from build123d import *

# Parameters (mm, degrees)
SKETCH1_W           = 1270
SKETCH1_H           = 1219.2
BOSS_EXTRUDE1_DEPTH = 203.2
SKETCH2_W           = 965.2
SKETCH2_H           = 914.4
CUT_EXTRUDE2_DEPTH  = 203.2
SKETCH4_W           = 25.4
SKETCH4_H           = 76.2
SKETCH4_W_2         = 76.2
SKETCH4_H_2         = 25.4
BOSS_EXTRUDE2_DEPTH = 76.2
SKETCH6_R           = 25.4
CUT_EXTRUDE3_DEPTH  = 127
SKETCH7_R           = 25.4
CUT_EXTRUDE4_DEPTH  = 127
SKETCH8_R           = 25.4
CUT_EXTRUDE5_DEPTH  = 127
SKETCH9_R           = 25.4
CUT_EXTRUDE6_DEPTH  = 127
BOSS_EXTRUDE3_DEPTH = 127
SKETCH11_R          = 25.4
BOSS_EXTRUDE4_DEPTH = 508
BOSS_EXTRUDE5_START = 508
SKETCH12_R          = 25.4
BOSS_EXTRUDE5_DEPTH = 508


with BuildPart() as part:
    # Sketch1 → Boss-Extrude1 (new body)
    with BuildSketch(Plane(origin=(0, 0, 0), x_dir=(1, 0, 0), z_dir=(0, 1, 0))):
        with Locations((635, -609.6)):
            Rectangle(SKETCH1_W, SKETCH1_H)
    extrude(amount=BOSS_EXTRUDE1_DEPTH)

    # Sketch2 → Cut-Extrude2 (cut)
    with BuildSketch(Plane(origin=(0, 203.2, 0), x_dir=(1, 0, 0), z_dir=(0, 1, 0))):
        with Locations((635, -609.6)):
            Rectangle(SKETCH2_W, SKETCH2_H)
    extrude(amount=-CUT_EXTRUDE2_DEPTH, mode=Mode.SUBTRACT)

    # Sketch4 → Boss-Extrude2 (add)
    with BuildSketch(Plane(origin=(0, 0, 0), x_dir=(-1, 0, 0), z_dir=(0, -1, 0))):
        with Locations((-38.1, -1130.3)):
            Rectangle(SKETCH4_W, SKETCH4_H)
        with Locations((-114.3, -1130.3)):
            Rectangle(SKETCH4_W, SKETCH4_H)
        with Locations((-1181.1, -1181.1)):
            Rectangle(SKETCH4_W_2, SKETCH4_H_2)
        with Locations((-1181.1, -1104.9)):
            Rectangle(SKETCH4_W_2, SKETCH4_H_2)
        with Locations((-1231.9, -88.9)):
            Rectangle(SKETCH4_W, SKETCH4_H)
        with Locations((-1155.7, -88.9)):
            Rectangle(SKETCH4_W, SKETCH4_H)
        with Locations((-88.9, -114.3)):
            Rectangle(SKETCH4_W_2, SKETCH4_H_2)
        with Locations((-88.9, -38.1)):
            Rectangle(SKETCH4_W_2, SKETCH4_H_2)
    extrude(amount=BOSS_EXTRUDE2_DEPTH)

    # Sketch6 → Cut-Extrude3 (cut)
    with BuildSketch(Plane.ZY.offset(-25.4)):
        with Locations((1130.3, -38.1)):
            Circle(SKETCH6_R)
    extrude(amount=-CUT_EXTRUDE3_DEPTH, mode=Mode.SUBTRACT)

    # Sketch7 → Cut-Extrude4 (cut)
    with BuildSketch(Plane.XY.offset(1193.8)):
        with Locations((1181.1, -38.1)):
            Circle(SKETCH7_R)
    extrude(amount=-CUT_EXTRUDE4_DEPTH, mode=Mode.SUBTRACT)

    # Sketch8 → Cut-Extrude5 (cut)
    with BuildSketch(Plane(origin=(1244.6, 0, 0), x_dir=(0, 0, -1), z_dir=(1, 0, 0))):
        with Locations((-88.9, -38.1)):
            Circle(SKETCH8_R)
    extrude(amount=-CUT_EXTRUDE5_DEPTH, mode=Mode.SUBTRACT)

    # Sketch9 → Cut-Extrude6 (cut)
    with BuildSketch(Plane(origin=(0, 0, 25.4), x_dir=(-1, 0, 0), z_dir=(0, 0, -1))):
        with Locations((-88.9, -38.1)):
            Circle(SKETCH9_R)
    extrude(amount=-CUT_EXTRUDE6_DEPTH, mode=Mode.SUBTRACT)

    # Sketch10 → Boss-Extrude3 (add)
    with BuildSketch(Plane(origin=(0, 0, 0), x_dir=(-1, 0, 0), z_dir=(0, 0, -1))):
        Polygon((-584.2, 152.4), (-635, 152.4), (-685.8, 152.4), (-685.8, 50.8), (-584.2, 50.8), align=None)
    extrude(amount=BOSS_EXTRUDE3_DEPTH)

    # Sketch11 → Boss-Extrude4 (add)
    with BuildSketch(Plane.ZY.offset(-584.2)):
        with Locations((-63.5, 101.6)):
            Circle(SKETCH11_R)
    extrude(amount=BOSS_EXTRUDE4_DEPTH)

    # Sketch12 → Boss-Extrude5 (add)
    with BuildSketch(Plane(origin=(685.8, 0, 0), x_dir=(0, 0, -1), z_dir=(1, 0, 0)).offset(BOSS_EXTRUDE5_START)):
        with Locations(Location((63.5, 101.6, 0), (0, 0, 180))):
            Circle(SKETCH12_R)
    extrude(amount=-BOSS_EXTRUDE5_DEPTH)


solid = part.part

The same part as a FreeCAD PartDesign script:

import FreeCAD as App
import Part
import Sketcher

V = App.Vector
Q = App.Units.Quantity

doc = App.newDocument("Part")
body = doc.addObject("PartDesign::Body", "Body")

# Sketch on XZ plane
sketch1 = body.newObject("Sketcher::SketchObject", "Sketch")
sketch1.AttachmentSupport = (doc.getObject("XZ_Plane"), [""])
sketch1.MapMode = "FlatFace"
sketch1.addGeometry([
    Part.LineSegment(V(0, 0, 0), V(0, 1219, 0)),
    Part.LineSegment(V(0, 1219, 0), V(1270, 1219, 0)),
    Part.LineSegment(V(1270, 1219, 0), V(1270, 0, 0)),
    Part.LineSegment(V(1270, 0, 0), V(0, 0, 0)),
], False)
sketch1.addConstraint([
    Sketcher.Constraint("Coincident", 0, 2, 1, 1),
    Sketcher.Constraint("Coincident", 1, 2, 2, 1),
    Sketcher.Constraint("Coincident", 2, 2, 3, 1),
    Sketcher.Constraint("Coincident", 3, 2, 0, 1),
    Sketcher.Constraint("Vertical", 0),
    Sketcher.Constraint("Horizontal", 1),
    Sketcher.Constraint("Vertical", 2),
    Sketcher.Constraint("Horizontal", 3),
    Sketcher.Constraint("Coincident", 3, 2, -1, 1),
    Sketcher.Constraint("DistanceX", 1, 1, 1, 2, Q("50 in")),
    Sketcher.Constraint("DistanceY", 0, 1, 0, 2, Q("48 in")),
])
pad1 = body.newObject("PartDesign::Pad", "Pad")
pad1.Profile = sketch1
pad1.Length = Q("8 in")
pad1.Reversed = True

# Sketch on XZ plane
sketch2 = body.newObject("Sketcher::SketchObject", "Sketch001")
sketch2.AttachmentSupport = (doc.getObject("XZ_Plane"), [""])
sketch2.MapMode = "FlatFace"
sketch2.AttachmentOffset = App.Placement(V(0, 0, -8 * 25.4), App.Rotation())
sketch2.addGeometry([
    Part.LineSegment(V(152, 152, 0), V(152, 1067, 0)),
    Part.LineSegment(V(152, 1067, 0), V(1118, 1067, 0)),
    Part.LineSegment(V(1118, 1067, 0), V(1118, 152, 0)),
    Part.LineSegment(V(1118, 152, 0), V(152, 152, 0)),
], False)
sketch2.addConstraint([
    Sketcher.Constraint("Coincident", 0, 2, 1, 1),
    Sketcher.Constraint("Coincident", 1, 2, 2, 1),
    Sketcher.Constraint("Coincident", 2, 2, 3, 1),
    Sketcher.Constraint("Coincident", 3, 2, 0, 1),
    Sketcher.Constraint("Vertical", 0),
    Sketcher.Constraint("Horizontal", 1),
    Sketcher.Constraint("Vertical", 2),
    Sketcher.Constraint("Horizontal", 3),
    Sketcher.Constraint("DistanceX", 1, 1, 1, 2, Q("38 in")),
    Sketcher.Constraint("DistanceY", 0, 1, 0, 2, Q("36 in")),
    Sketcher.Constraint("DistanceX", -1, 1, 0, 2, Q("6 in")),
    Sketcher.Constraint("DistanceY", -1, 1, 0, 2, Q("42 in")),
])
pocket1 = body.newObject("PartDesign::Pocket", "Pocket")
pocket1.Profile = sketch2
pocket1.Length = Q("8 in")
pocket1.Reversed = True

# Sketch on XZ plane
sketch3 = body.newObject("Sketcher::SketchObject", "Sketch002")
sketch3.AttachmentSupport = (doc.getObject("XZ_Plane"), [""])
sketch3.MapMode = "FlatFace"
sketch3.addGeometry([
    Part.LineSegment(V(51, 1092, 0), V(51, 1168, 0)),  # 0
    Part.LineSegment(V(51, 1168, 0), V(25, 1168, 0)),  # 1
    Part.LineSegment(V(25, 1168, 0), V(25, 1092, 0)),  # 2
    Part.LineSegment(V(25, 1092, 0), V(51, 1092, 0)),  # 3
    Part.LineSegment(V(127, 1092, 0), V(127, 1168, 0)),  # 4
    Part.LineSegment(V(127, 1168, 0), V(102, 1168, 0)),  # 5
    Part.LineSegment(V(102, 1168, 0), V(102, 1092, 0)),  # 6
    Part.LineSegment(V(102, 1092, 0), V(127, 1092, 0)),  # 7
    Part.LineSegment(V(1219, 1168, 0), V(1219, 1194, 0)),  # 8
    Part.LineSegment(V(1219, 1194, 0), V(1143, 1194, 0)),  # 9
    Part.LineSegment(V(1143, 1194, 0), V(1143, 1168, 0)),  # 10
    Part.LineSegment(V(1143, 1168, 0), V(1219, 1168, 0)),  # 11
    Part.LineSegment(V(1219, 1092, 0), V(1219, 1118, 0)),  # 12
    Part.LineSegment(V(1219, 1118, 0), V(1143, 1118, 0)),  # 13
    Part.LineSegment(V(1143, 1118, 0), V(1143, 1092, 0)),  # 14
    Part.LineSegment(V(1143, 1092, 0), V(1219, 1092, 0)),  # 15
    Part.LineSegment(V(1245, 51, 0), V(1245, 127, 0)),  # 16
    Part.LineSegment(V(1245, 127, 0), V(1219, 127, 0)),  # 17
    Part.LineSegment(V(1219, 127, 0), V(1219, 51, 0)),  # 18
    Part.LineSegment(V(1219, 51, 0), V(1245, 51, 0)),  # 19
    Part.LineSegment(V(1168, 51, 0), V(1168, 127, 0)),  # 20
    Part.LineSegment(V(1168, 127, 0), V(1143, 127, 0)),  # 21
    Part.LineSegment(V(1143, 127, 0), V(1143, 51, 0)),  # 22
    Part.LineSegment(V(1143, 51, 0), V(1168, 51, 0)),  # 23
    Part.LineSegment(V(127, 102, 0), V(127, 127, 0)),  # 24
    Part.LineSegment(V(127, 127, 0), V(51, 127, 0)),  # 25
    Part.LineSegment(V(51, 127, 0), V(51, 102, 0)),  # 26
    Part.LineSegment(V(51, 102, 0), V(127, 102, 0)),  # 27
    Part.LineSegment(V(127, 25, 0), V(127, 51, 0)),  # 28
    Part.LineSegment(V(127, 51, 0), V(51, 51, 0)),  # 29
    Part.LineSegment(V(51, 51, 0), V(51, 25, 0)),  # 30
    Part.LineSegment(V(51, 25, 0), V(127, 25, 0)),  # 31
], False)
sketch3.addConstraint([
    Sketcher.Constraint("Coincident", 0, 2, 1, 1),
    Sketcher.Constraint("Coincident", 1, 2, 2, 1),
    Sketcher.Constraint("Coincident", 2, 2, 3, 1),
    Sketcher.Constraint("Coincident", 3, 2, 0, 1),
    Sketcher.Constraint("Coincident", 4, 2, 5, 1),
    Sketcher.Constraint("Coincident", 5, 2, 6, 1),
    Sketcher.Constraint("Coincident", 6, 2, 7, 1),
    Sketcher.Constraint("Coincident", 7, 2, 4, 1),
    Sketcher.Constraint("Coincident", 8, 2, 9, 1),
    Sketcher.Constraint("Coincident", 9, 2, 10, 1),
    Sketcher.Constraint("Coincident", 10, 2, 11, 1),
    Sketcher.Constraint("Coincident", 11, 2, 8, 1),
    Sketcher.Constraint("Coincident", 12, 2, 13, 1),
    Sketcher.Constraint("Coincident", 13, 2, 14, 1),
    Sketcher.Constraint("Coincident", 14, 2, 15, 1),
    Sketcher.Constraint("Coincident", 15, 2, 12, 1),
    Sketcher.Constraint("Coincident", 16, 2, 17, 1),
    Sketcher.Constraint("Coincident", 17, 2, 18, 1),
    Sketcher.Constraint("Coincident", 18, 2, 19, 1),
    Sketcher.Constraint("Coincident", 19, 2, 16, 1),
    Sketcher.Constraint("Coincident", 20, 2, 21, 1),
    Sketcher.Constraint("Coincident", 21, 2, 22, 1),
    Sketcher.Constraint("Coincident", 22, 2, 23, 1),
    Sketcher.Constraint("Coincident", 23, 2, 20, 1),
    Sketcher.Constraint("Coincident", 24, 2, 25, 1),
    Sketcher.Constraint("Coincident", 25, 2, 26, 1),
    Sketcher.Constraint("Coincident", 26, 2, 27, 1),
    Sketcher.Constraint("Coincident", 27, 2, 24, 1),
    Sketcher.Constraint("Coincident", 28, 2, 29, 1),
    Sketcher.Constraint("Coincident", 29, 2, 30, 1),
    Sketcher.Constraint("Coincident", 30, 2, 31, 1),
    Sketcher.Constraint("Coincident", 31, 2, 28, 1),
    Sketcher.Constraint("Vertical", 0),
    Sketcher.Constraint("Horizontal", 1),
    Sketcher.Constraint("Vertical", 2),
    Sketcher.Constraint("Horizontal", 3),
    Sketcher.Constraint("Vertical", 4),
    Sketcher.Constraint("Horizontal", 5),
    Sketcher.Constraint("Vertical", 6),
    Sketcher.Constraint("Horizontal", 7),
    Sketcher.Constraint("Vertical", 8),
    Sketcher.Constraint("Horizontal", 9),
    Sketcher.Constraint("Vertical", 10),
    Sketcher.Constraint("Horizontal", 11),
    Sketcher.Constraint("Vertical", 12),
    Sketcher.Constraint("Horizontal", 13),
    Sketcher.Constraint("Vertical", 14),
    Sketcher.Constraint("Horizontal", 15),
    Sketcher.Constraint("Vertical", 16),
    Sketcher.Constraint("Horizontal", 17),
    Sketcher.Constraint("Vertical", 18),
    Sketcher.Constraint("Horizontal", 19),
    Sketcher.Constraint("Vertical", 20),
    Sketcher.Constraint("Horizontal", 21),
    Sketcher.Constraint("Vertical", 22),
    Sketcher.Constraint("Horizontal", 23),
    Sketcher.Constraint("Vertical", 24),
    Sketcher.Constraint("Horizontal", 25),
    Sketcher.Constraint("Vertical", 26),
    Sketcher.Constraint("Horizontal", 27),
    Sketcher.Constraint("Vertical", 28),
    Sketcher.Constraint("Horizontal", 29),
    Sketcher.Constraint("Vertical", 30),
    Sketcher.Constraint("Horizontal", 31),
    Sketcher.Constraint("Horizontal", 1, 2, 4, 2),
    Sketcher.Constraint("Horizontal", 3, 2, 6, 2),
    Sketcher.Constraint("Horizontal", 5, 2, 10, 2),
    Sketcher.Constraint("Horizontal", 7, 2, 14, 2),
    Sketcher.Constraint("Horizontal", 17, 2, 20, 2),
    Sketcher.Constraint("Horizontal", 19, 2, 22, 2),
    Sketcher.Constraint("Horizontal", 21, 2, 24, 2),
    Sketcher.Constraint("Horizontal", 23, 2, 28, 2),
    Sketcher.Constraint("Vertical", 11, 2, 12, 2),
    Sketcher.Constraint("Vertical", 10, 2, 13, 2),
    Sketcher.Constraint("Vertical", 15, 2, 17, 2),
    Sketcher.Constraint("Vertical", 14, 2, 21, 2),
    Sketcher.Constraint("Vertical", 7, 2, 24, 2),
    Sketcher.Constraint("Vertical", 3, 2, 25, 2),
    Sketcher.Constraint("Vertical", 27, 2, 28, 2),
    Sketcher.Constraint("Vertical", 26, 2, 29, 2),
    Sketcher.Constraint("Equal", 3, 5),
    Sketcher.Constraint("Equal", 7, 17),
    Sketcher.Constraint("Equal", 19, 21),
    Sketcher.Constraint("Equal", 15, 25),
    Sketcher.Constraint("Equal", 31, 0),
    Sketcher.Constraint("Equal", 23, 8),
    Sketcher.Constraint("Equal", 10, 12),
    Sketcher.Constraint("Equal", 6, 16),
    Sketcher.Constraint("Equal", 14, 24),
    Sketcher.Constraint("Equal", 26, 28),
    Sketcher.Constraint("DistanceX", 1, 2, 1, 1, Q("1 in")),
    Sketcher.Constraint("DistanceX", 9, 2, 9, 1, Q("3 in")),
    Sketcher.Constraint("DistanceX", -1, 1, 0, 2, Q("2 in")),
    Sketcher.Constraint("DistanceY", -1, 1, 0, 2, Q("46 in")),
    Sketcher.Constraint("DistanceX", -1, 1, 8, 2, Q("48 in")),
    Sketcher.Constraint("DistanceY", -1, 1, 16, 2, Q("5 in")),
])
pad2 = body.newObject("PartDesign::Pad", "Pad001")
pad2.Profile = sketch3
pad2.Length = Q("3 in")

# Sketch on YZ plane
sketch4 = body.newObject("Sketcher::SketchObject", "Sketch003")
sketch4.AttachmentSupport = (doc.getObject("YZ_Plane"), [""])
sketch4.MapMode = "FlatFace"
sketch4.AttachmentOffset = App.Placement(V(0, 0, 1 * 25.4), App.Rotation())
sketch4.addGeometry(Part.Circle(V(-38, 1130, 0), V(0, 0, 1), 25), False)
sketch4.addConstraint([
    Sketcher.Constraint("Diameter", 0, Q("2 in")),
    Sketcher.Constraint("DistanceX", 0, 3, -1, 1, Q("1.5 in")),
    Sketcher.Constraint("DistanceY", -1, 1, 0, 3, Q("44.5 in")),
])
pocket2 = body.newObject("PartDesign::Pocket", "Pocket001")
pocket2.Profile = sketch4
pocket2.Length = Q("5 in")
pocket2.Reversed = True

# Sketch on XY plane
sketch5 = body.newObject("Sketcher::SketchObject", "Sketch004")
sketch5.AttachmentSupport = (doc.getObject("XY_Plane"), [""])
sketch5.MapMode = "FlatFace"
sketch5.AttachmentOffset = App.Placement(V(0, 0, 47 * 25.4), App.Rotation())
sketch5.addGeometry(Part.Circle(V(1181, -38, 0), V(0, 0, 1), 25), False)
sketch5.addConstraint([
    Sketcher.Constraint("Diameter", 0, Q("2 in")),
    Sketcher.Constraint("DistanceX", -1, 1, 0, 3, Q("46.5 in")),
    Sketcher.Constraint("DistanceY", 0, 3, -1, 1, Q("1.5 in")),
])
pocket3 = body.newObject("PartDesign::Pocket", "Pocket002")
pocket3.Profile = sketch5
pocket3.Length = Q("5 in")

# Sketch on YZ plane
sketch6 = body.newObject("Sketcher::SketchObject", "Sketch005")
sketch6.AttachmentSupport = (doc.getObject("YZ_Plane"), [""])
sketch6.MapMode = "FlatFace"
sketch6.AttachmentOffset = App.Placement(V(0, 0, 49 * 25.4), App.Rotation())
sketch6.addGeometry(Part.Circle(V(-38, 89, 0), V(0, 0, 1), 25), False)
sketch6.addConstraint([
    Sketcher.Constraint("Diameter", 0, Q("2 in")),
    Sketcher.Constraint("DistanceX", 0, 3, -1, 1, Q("1.5 in")),
    Sketcher.Constraint("DistanceY", -1, 1, 0, 3, Q("3.5 in")),
])
pocket4 = body.newObject("PartDesign::Pocket", "Pocket003")
pocket4.Profile = sketch6
pocket4.Length = Q("5 in")

# Sketch on XY plane
sketch7 = body.newObject("Sketcher::SketchObject", "Sketch006")
sketch7.AttachmentSupport = (doc.getObject("XY_Plane"), [""])
sketch7.MapMode = "FlatFace"
sketch7.AttachmentOffset = App.Placement(V(0, 0, 1 * 25.4), App.Rotation())
sketch7.addGeometry(Part.Circle(V(89, -38, 0), V(0, 0, 1), 25), False)
sketch7.addConstraint([
    Sketcher.Constraint("Diameter", 0, Q("2 in")),
    Sketcher.Constraint("DistanceX", -1, 1, 0, 3, Q("3.5 in")),
    Sketcher.Constraint("DistanceY", 0, 3, -1, 1, Q("1.5 in")),
])
pocket5 = body.newObject("PartDesign::Pocket", "Pocket004")
pocket5.Profile = sketch7
pocket5.Length = Q("5 in")
pocket5.Reversed = True

# Sketch on XY plane
sketch8 = body.newObject("Sketcher::SketchObject", "Sketch007")
sketch8.AttachmentSupport = (doc.getObject("XY_Plane"), [""])
sketch8.MapMode = "FlatFace"
sketch8.addGeometry([
    Part.LineSegment(V(584, 152, 0), V(686, 152, 0)),
    Part.LineSegment(V(686, 152, 0), V(686, 51, 0)),
    Part.LineSegment(V(686, 51, 0), V(584, 51, 0)),
    Part.LineSegment(V(584, 51, 0), V(584, 152, 0)),
], False)
sketch8.addConstraint([
    Sketcher.Constraint("Coincident", 0, 2, 1, 1),
    Sketcher.Constraint("Coincident", 1, 2, 2, 1),
    Sketcher.Constraint("Coincident", 2, 2, 3, 1),
    Sketcher.Constraint("Coincident", 3, 2, 0, 1),
    Sketcher.Constraint("Horizontal", 0),
    Sketcher.Constraint("Vertical", 1),
    Sketcher.Constraint("Horizontal", 2),
    Sketcher.Constraint("Vertical", 3),
    Sketcher.Constraint("Equal", 2, 1),
    Sketcher.Constraint("DistanceX", 0, 1, 0, 2, Q("4 in")),
    Sketcher.Constraint("DistanceX", -1, 1, 0, 2, Q("27 in")),
    Sketcher.Constraint("DistanceY", -1, 1, 0, 2, Q("6 in")),
])
pad3 = body.newObject("PartDesign::Pad", "Pad002")
pad3.Profile = sketch8
pad3.Length = Q("5 in")
pad3.Reversed = True

# Sketch on YZ plane
sketch9 = body.newObject("Sketcher::SketchObject", "Sketch008")
sketch9.AttachmentSupport = (doc.getObject("YZ_Plane"), [""])
sketch9.MapMode = "FlatFace"
sketch9.AttachmentOffset = App.Placement(V(0, 0, 23 * 25.4), App.Rotation())
sketch9.addGeometry(Part.Circle(V(102, -64, 0), V(0, 0, 1), 25), False)
sketch9.addConstraint([
    Sketcher.Constraint("Diameter", 0, Q("2 in")),
    Sketcher.Constraint("DistanceX", -1, 1, 0, 3, Q("4 in")),
    Sketcher.Constraint("DistanceY", 0, 3, -1, 1, Q("2.5 in")),
])
pad4 = body.newObject("PartDesign::Pad", "Pad003")
pad4.Profile = sketch9
pad4.Length = Q("20 in")
pad4.Reversed = True

# Sketch on YZ plane
sketch10 = body.newObject("Sketcher::SketchObject", "Sketch009")
sketch10.AttachmentSupport = (doc.getObject("YZ_Plane"), [""])
sketch10.MapMode = "FlatFace"
sketch10.AttachmentOffset = App.Placement(V(0, 0, 47 * 25.4), App.Rotation())
sketch10.addGeometry(Part.Circle(V(102, -64, 0), V(0, 0, 1), 25), False)
sketch10.addConstraint([
    Sketcher.Constraint("Diameter", 0, Q("2 in")),
    Sketcher.Constraint("DistanceX", -1, 1, 0, 3, Q("4 in")),
    Sketcher.Constraint("DistanceY", 0, 3, -1, 1, Q("2.5 in")),
])
pad5 = body.newObject("PartDesign::Pad", "Pad004")
pad5.Profile = sketch10
pad5.Length = Q("20 in")
pad5.Reversed = True

doc.recompute()
